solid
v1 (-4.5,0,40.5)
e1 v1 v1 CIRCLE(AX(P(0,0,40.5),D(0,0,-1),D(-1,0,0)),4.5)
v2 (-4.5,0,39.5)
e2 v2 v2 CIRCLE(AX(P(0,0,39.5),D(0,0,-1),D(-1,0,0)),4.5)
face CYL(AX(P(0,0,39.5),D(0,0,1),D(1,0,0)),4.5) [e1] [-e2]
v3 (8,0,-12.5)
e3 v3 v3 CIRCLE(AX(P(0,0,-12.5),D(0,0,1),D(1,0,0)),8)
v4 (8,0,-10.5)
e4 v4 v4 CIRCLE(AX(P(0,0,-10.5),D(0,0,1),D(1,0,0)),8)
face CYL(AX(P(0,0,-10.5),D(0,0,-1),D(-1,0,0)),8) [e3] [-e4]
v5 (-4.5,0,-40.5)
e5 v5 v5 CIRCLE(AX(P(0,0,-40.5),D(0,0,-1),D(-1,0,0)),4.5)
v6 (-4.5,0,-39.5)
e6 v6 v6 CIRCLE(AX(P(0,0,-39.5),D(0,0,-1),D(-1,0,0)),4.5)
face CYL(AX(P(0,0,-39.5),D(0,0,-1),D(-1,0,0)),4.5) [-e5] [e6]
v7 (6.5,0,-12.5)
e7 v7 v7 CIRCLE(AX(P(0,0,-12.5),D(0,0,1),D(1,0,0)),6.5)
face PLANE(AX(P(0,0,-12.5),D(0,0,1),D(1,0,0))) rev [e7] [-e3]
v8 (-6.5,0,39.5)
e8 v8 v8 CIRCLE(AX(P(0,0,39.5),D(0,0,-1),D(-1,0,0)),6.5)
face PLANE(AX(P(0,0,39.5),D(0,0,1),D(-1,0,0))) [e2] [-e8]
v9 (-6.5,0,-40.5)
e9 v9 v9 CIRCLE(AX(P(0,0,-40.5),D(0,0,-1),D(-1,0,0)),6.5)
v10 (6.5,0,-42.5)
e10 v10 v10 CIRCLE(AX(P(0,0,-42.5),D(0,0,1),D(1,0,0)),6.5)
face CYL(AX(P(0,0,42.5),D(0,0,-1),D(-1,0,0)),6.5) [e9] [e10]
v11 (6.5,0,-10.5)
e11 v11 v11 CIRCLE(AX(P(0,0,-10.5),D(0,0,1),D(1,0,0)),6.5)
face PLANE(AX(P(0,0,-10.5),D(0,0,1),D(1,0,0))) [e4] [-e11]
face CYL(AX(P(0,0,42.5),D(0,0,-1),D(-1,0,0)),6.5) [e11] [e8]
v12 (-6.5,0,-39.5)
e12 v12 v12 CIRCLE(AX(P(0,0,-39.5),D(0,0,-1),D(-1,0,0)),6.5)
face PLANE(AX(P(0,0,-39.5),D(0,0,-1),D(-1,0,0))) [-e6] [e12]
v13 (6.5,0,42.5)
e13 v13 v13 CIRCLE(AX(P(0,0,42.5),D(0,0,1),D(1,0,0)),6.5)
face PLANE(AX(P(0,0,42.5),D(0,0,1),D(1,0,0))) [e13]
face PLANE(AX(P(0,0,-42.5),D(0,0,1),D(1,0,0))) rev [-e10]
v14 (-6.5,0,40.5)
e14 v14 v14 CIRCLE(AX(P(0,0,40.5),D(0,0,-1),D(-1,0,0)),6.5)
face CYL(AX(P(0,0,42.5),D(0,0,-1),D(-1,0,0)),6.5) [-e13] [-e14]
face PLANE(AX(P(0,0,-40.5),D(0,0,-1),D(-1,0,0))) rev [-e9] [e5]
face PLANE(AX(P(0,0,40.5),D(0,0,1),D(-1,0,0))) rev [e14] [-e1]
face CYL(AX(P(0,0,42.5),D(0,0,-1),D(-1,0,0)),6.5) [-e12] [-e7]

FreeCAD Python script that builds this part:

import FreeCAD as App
import Part
import Sketcher
from FreeCAD import Vector
Q = App.Units.Quantity

doc = App.newDocument("Part")
body = doc.addObject("PartDesign::Body", "Body")

# Sketch on XY plane
sketch1 = doc.addObject("Sketcher::SketchObject", "Sketch")
body.addObject(sketch1)
sketch1.AttachmentSupport = (doc.XY_Plane, [""])
sketch1.MapMode = "FlatFace"
sketch1.addGeometry(Part.Circle(Vector(0, 0, 0), Vector(0, 0, 1), 6.5), False)
sketch1.addConstraint(Sketcher.Constraint("Coincident", 0, 3, -1, 1))
sketch1.addConstraint(Sketcher.Constraint("Diameter", 0, Q("13 mm")))
pad1 = doc.addObject("PartDesign::Pad", "Pad")
body.addObject(pad1)
pad1.Profile = sketch1
pad1.Length = 85
pad1.Midplane = True

# Sketch on XY plane
sketch2 = doc.addObject("Sketcher::SketchObject", "Sketch001")
body.addObject(sketch2)
sketch2.AttachmentSupport = (doc.XY_Plane, [""])
sketch2.MapMode = "FlatFace"
sketch2.AttachmentOffset = App.Placement(Vector(0, 0, -12.5), App.Rotation())
sketch2.addGeometry(Part.Circle(Vector(0, 0, 0), Vector(0, 0, 1), 8), False)
sketch2.addConstraint(Sketcher.Constraint("Coincident", 0, 3, -1, 1))
sketch2.addConstraint(Sketcher.Constraint("Diameter", 0, Q("16 mm")))
pad2 = doc.addObject("PartDesign::Pad", "Pad001")
body.addObject(pad2)
pad2.Profile = sketch2
pad2.Length = 2

# Sketch on XY plane
sketch3 = doc.addObject("Sketcher::SketchObject", "Sketch002")
body.addObject(sketch3)
sketch3.AttachmentSupport = (doc.XY_Plane, [""])
sketch3.MapMode = "FlatFace"
sketch3.AttachmentOffset = App.Placement(Vector(0, 0, -40.5), App.Rotation())
sketch3.addGeometry(Part.Circle(Vector(0, 0, 0), Vector(0, 0, 1), 6.5), False)
sketch3.addGeometry(Part.Circle(Vector(0, 0, 0), Vector(0, 0, 1), 4.5), False)
sketch3.addConstraint(Sketcher.Constraint("Coincident", 0, 3, -1, 1))
sketch3.addConstraint(Sketcher.Constraint("Coincident", 1, 3, -1, 1))
sketch3.addConstraint(Sketcher.Constraint("Diameter", 0, Q("13 mm")))
sketch3.addConstraint(Sketcher.Constraint("Diameter", 1, Q("9 mm")))
pocket1 = doc.addObject("PartDesign::Pocket", "Pocket")
body.addObject(pocket1)
pocket1.Profile = sketch3
pocket1.Length = 1
pocket1.Reversed = True
doc.recompute()

mirrored = doc.addObject("PartDesign::Mirrored", "Mirrored")
body.addObject(mirrored)
mirrored.Originals = [pocket1]
mirrored.MirrorPlane = (doc.XY_Plane, [""])
body.Tip = mirrored

doc.recompute()
